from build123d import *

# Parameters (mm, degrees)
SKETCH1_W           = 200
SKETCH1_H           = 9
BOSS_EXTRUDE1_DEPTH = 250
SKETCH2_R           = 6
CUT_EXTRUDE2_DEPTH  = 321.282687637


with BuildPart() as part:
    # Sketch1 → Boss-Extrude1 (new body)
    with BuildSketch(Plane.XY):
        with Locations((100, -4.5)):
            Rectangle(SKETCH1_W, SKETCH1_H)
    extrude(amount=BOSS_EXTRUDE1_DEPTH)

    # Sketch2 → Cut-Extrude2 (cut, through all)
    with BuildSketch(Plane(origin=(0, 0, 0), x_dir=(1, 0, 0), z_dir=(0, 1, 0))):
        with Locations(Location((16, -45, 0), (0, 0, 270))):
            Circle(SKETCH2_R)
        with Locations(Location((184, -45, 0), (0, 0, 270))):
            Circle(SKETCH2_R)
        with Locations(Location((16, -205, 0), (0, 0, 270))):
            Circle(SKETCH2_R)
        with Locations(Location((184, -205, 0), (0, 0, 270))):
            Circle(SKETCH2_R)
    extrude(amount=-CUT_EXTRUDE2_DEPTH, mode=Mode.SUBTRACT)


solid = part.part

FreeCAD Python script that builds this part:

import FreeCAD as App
import Part
import Sketcher
Q = App.Units.Quantity


def add_polygon(sketch, points):
    """Adds a closed chain of lines whose ends are joined by coincident constraints."""
    first, n = sketch.GeometryCount, len(points)
    for a, b in zip(points, points[1:] + points[:1]):
        sketch.addGeometry(Part.LineSegment(App.Vector(*a, 0), App.Vector(*b, 0)), False)
    for i in range(n):
        sketch.addConstraint(Sketcher.Constraint("Coincident", first + i, 2, first + (i + 1) % n, 1))

doc = App.newDocument("Part")
body = doc.addObject("PartDesign::Body", "Body")

# Sketch on XY plane
sketch1 = body.newObject("Sketcher::SketchObject", "Sketch")
sketch1.AttachmentSupport = (doc.getObject("XY_Plane"), [""])
sketch1.MapMode = "FlatFace"
add_polygon(sketch1, [(0, 0), (0, -9), (200, -9), (200, 0)])  # lines 0-3
sketch1.addConstraint([
    Sketcher.Constraint("Vertical", 0),
    Sketcher.Constraint("Horizontal", 1),
    Sketcher.Constraint("Vertical", 2),
    Sketcher.Constraint("Horizontal", 3),
    Sketcher.Constraint("Coincident", 3, 2, -1, 1),
    Sketcher.Constraint("DistanceX", 1, 1, 1, 2, Q("200 mm")),
    Sketcher.Constraint("DistanceY", 0, 2, 0, 1, Q("9 mm")),
])
pad1 = body.newObject("PartDesign::Pad", "Pad")
pad1.Profile = sketch1
pad1.Length = 250

# Sketch on XZ plane
sketch2 = body.newObject("Sketcher::SketchObject", "Sketch001")
sketch2.AttachmentSupport = (doc.getObject("XZ_Plane"), [""])
sketch2.MapMode = "FlatFace"
sketch2.addGeometry([
    Part.Circle(App.Vector(16, 45, 0), App.Vector(0, 0, 1), 6),
    Part.Circle(App.Vector(184, 45, 0), App.Vector(0, 0, 1), 6),
    Part.Circle(App.Vector(16, 205, 0), App.Vector(0, 0, 1), 6),
    Part.Circle(App.Vector(184, 205, 0), App.Vector(0, 0, 1), 6),
], False)
sketch2.addConstraint([
    Sketcher.Constraint("Equal", 0, 1),
    Sketcher.Constraint("Equal", 1, 2),
    Sketcher.Constraint("Equal", 2, 3),
    Sketcher.Constraint("Horizontal", 0, 3, 1, 3),
    Sketcher.Constraint("Horizontal", 2, 3, 3, 3),
    Sketcher.Constraint("Vertical", 0, 3, 2, 3),
    Sketcher.Constraint("Vertical", 1, 3, 3, 3),
    Sketcher.Constraint("Diameter", 0, Q("12 mm")),
    Sketcher.Constraint("DistanceX", -1, 1, 0, 3, Q("16 mm")),
    Sketcher.Constraint("DistanceY", -1, 1, 0, 3, Q("45 mm")),
    Sketcher.Constraint("DistanceX", -1, 1, 1, 3, Q("184 mm")),
    Sketcher.Constraint("DistanceY", -1, 1, 2, 3, Q("205 mm")),
])
pocket1 = body.newObject("PartDesign::Pocket", "Pocket")
pocket1.Profile = sketch2
pocket1.Type = "ThroughAll"
pocket1.Reversed = True

doc.recompute()
